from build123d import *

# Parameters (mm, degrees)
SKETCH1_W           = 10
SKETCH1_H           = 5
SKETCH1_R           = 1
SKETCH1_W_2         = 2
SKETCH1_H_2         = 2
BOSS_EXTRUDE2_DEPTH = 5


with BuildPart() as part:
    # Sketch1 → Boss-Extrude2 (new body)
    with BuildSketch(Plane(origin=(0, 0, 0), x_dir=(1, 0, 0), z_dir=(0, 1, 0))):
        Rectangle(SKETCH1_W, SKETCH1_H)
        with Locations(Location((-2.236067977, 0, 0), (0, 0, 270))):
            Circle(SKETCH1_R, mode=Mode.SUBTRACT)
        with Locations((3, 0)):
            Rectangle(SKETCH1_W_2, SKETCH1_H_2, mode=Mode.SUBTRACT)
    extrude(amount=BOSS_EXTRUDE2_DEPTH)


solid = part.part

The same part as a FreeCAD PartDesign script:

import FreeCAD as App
import Part
import Sketcher

V = App.Vector
Q = App.Units.Quantity


def add_polygon(sketch, points):
    """Adds a closed chain of lines whose ends are joined by coincident constraints."""
    first, n = sketch.GeometryCount, len(points)
    for a, b in zip(points, points[1:] + points[:1]):
        sketch.addGeometry(Part.LineSegment(App.Vector(*a, 0), App.Vector(*b, 0)), False)
    for i in range(n):
        sketch.addConstraint(Sketcher.Constraint("Coincident", first + i, 2, first + (i + 1) % n, 1))

doc = App.newDocument("Part")
params = doc.addObject("Spreadsheet::Sheet", "Params")
for row, (alias, value) in enumerate([
    ("sketch1_diameter", "2 mm"),
    ("sketch1_width", "10 mm"),
    ("sketch1_width2", "2 mm"),
    ("sketch1_height", "5 mm"),
    ("pad1_length", "5 mm"),
], start=1):
    params.set(f"A{row}", alias)
    params.set(f"B{row}", "=" + value)
    params.setAlias(f"B{row}", alias)

body = doc.addObject("PartDesign::Body", "Body")

# Sketch on XZ plane
sketch1 = doc.addObject("Sketcher::SketchObject", "Sketch")
body.addObject(sketch1)
sketch1.AttachmentSupport = (doc.XZ_Plane, [""])
sketch1.MapMode = "FlatFace"
add_polygon(sketch1, [(-5, -2.5), (-5, 2.5), (5, 2.5), (5, -2.5)])  # lines 0-3
sketch1.addGeometry(Part.Circle(V(-2.236068, 0, 0), V(0, 0, 1), 1), False)  # 4
add_polygon(sketch1, [(4, 1), (2, 1), (2, -1), (4, -1)])  # lines 5-8
sketch1.addConstraint([
    Sketcher.Constraint("Vertical", 0),
    Sketcher.Constraint("Horizontal", 1),
    Sketcher.Constraint("Vertical", 2),
    Sketcher.Constraint("Horizontal", 3),
    Sketcher.Constraint("Horizontal", 5),
    Sketcher.Constraint("Vertical", 6),
    Sketcher.Constraint("Horizontal", 7),
    Sketcher.Constraint("Vertical", 8),
    Sketcher.Constraint("Symmetric", 0, 2, 2, 2, -1, 1),
    Sketcher.Constraint("PointOnObject", 4, 3, -1),
    Sketcher.Constraint("Equal", 7, 6),
    Sketcher.Constraint("Diameter", 4, Q("2 mm")),
    Sketcher.Constraint("DistanceX", 1, 1, 1, 2, Q("10 mm")),
    Sketcher.Constraint("DistanceX", 5, 2, 5, 1, Q("2 mm")),
    Sketcher.Constraint("DistanceY", 0, 1, 0, 2, Q("5 mm")),
    Sketcher.Constraint("DistanceX", -1, 1, 5, 2, Q("2 mm")),
    Sketcher.Constraint("DistanceY", -1, 1, 5, 2, Q("1 mm")),
    Sketcher.Constraint("DistanceX", 4, 3, -1, 1, Q("2.236068 mm")),
])
sketch1.setExpression("Constraints[19]", "Params.sketch1_diameter")
sketch1.setExpression("Constraints[20]", "Params.sketch1_width")
sketch1.setExpression("Constraints[21]", "Params.sketch1_width2")
sketch1.setExpression("Constraints[22]", "Params.sketch1_height")
pad1 = doc.addObject("PartDesign::Pad", "Pad")
body.addObject(pad1)
pad1.Profile = sketch1
pad1.setExpression("Length", "Params.pad1_length")
pad1.Reversed = True

doc.recompute()
